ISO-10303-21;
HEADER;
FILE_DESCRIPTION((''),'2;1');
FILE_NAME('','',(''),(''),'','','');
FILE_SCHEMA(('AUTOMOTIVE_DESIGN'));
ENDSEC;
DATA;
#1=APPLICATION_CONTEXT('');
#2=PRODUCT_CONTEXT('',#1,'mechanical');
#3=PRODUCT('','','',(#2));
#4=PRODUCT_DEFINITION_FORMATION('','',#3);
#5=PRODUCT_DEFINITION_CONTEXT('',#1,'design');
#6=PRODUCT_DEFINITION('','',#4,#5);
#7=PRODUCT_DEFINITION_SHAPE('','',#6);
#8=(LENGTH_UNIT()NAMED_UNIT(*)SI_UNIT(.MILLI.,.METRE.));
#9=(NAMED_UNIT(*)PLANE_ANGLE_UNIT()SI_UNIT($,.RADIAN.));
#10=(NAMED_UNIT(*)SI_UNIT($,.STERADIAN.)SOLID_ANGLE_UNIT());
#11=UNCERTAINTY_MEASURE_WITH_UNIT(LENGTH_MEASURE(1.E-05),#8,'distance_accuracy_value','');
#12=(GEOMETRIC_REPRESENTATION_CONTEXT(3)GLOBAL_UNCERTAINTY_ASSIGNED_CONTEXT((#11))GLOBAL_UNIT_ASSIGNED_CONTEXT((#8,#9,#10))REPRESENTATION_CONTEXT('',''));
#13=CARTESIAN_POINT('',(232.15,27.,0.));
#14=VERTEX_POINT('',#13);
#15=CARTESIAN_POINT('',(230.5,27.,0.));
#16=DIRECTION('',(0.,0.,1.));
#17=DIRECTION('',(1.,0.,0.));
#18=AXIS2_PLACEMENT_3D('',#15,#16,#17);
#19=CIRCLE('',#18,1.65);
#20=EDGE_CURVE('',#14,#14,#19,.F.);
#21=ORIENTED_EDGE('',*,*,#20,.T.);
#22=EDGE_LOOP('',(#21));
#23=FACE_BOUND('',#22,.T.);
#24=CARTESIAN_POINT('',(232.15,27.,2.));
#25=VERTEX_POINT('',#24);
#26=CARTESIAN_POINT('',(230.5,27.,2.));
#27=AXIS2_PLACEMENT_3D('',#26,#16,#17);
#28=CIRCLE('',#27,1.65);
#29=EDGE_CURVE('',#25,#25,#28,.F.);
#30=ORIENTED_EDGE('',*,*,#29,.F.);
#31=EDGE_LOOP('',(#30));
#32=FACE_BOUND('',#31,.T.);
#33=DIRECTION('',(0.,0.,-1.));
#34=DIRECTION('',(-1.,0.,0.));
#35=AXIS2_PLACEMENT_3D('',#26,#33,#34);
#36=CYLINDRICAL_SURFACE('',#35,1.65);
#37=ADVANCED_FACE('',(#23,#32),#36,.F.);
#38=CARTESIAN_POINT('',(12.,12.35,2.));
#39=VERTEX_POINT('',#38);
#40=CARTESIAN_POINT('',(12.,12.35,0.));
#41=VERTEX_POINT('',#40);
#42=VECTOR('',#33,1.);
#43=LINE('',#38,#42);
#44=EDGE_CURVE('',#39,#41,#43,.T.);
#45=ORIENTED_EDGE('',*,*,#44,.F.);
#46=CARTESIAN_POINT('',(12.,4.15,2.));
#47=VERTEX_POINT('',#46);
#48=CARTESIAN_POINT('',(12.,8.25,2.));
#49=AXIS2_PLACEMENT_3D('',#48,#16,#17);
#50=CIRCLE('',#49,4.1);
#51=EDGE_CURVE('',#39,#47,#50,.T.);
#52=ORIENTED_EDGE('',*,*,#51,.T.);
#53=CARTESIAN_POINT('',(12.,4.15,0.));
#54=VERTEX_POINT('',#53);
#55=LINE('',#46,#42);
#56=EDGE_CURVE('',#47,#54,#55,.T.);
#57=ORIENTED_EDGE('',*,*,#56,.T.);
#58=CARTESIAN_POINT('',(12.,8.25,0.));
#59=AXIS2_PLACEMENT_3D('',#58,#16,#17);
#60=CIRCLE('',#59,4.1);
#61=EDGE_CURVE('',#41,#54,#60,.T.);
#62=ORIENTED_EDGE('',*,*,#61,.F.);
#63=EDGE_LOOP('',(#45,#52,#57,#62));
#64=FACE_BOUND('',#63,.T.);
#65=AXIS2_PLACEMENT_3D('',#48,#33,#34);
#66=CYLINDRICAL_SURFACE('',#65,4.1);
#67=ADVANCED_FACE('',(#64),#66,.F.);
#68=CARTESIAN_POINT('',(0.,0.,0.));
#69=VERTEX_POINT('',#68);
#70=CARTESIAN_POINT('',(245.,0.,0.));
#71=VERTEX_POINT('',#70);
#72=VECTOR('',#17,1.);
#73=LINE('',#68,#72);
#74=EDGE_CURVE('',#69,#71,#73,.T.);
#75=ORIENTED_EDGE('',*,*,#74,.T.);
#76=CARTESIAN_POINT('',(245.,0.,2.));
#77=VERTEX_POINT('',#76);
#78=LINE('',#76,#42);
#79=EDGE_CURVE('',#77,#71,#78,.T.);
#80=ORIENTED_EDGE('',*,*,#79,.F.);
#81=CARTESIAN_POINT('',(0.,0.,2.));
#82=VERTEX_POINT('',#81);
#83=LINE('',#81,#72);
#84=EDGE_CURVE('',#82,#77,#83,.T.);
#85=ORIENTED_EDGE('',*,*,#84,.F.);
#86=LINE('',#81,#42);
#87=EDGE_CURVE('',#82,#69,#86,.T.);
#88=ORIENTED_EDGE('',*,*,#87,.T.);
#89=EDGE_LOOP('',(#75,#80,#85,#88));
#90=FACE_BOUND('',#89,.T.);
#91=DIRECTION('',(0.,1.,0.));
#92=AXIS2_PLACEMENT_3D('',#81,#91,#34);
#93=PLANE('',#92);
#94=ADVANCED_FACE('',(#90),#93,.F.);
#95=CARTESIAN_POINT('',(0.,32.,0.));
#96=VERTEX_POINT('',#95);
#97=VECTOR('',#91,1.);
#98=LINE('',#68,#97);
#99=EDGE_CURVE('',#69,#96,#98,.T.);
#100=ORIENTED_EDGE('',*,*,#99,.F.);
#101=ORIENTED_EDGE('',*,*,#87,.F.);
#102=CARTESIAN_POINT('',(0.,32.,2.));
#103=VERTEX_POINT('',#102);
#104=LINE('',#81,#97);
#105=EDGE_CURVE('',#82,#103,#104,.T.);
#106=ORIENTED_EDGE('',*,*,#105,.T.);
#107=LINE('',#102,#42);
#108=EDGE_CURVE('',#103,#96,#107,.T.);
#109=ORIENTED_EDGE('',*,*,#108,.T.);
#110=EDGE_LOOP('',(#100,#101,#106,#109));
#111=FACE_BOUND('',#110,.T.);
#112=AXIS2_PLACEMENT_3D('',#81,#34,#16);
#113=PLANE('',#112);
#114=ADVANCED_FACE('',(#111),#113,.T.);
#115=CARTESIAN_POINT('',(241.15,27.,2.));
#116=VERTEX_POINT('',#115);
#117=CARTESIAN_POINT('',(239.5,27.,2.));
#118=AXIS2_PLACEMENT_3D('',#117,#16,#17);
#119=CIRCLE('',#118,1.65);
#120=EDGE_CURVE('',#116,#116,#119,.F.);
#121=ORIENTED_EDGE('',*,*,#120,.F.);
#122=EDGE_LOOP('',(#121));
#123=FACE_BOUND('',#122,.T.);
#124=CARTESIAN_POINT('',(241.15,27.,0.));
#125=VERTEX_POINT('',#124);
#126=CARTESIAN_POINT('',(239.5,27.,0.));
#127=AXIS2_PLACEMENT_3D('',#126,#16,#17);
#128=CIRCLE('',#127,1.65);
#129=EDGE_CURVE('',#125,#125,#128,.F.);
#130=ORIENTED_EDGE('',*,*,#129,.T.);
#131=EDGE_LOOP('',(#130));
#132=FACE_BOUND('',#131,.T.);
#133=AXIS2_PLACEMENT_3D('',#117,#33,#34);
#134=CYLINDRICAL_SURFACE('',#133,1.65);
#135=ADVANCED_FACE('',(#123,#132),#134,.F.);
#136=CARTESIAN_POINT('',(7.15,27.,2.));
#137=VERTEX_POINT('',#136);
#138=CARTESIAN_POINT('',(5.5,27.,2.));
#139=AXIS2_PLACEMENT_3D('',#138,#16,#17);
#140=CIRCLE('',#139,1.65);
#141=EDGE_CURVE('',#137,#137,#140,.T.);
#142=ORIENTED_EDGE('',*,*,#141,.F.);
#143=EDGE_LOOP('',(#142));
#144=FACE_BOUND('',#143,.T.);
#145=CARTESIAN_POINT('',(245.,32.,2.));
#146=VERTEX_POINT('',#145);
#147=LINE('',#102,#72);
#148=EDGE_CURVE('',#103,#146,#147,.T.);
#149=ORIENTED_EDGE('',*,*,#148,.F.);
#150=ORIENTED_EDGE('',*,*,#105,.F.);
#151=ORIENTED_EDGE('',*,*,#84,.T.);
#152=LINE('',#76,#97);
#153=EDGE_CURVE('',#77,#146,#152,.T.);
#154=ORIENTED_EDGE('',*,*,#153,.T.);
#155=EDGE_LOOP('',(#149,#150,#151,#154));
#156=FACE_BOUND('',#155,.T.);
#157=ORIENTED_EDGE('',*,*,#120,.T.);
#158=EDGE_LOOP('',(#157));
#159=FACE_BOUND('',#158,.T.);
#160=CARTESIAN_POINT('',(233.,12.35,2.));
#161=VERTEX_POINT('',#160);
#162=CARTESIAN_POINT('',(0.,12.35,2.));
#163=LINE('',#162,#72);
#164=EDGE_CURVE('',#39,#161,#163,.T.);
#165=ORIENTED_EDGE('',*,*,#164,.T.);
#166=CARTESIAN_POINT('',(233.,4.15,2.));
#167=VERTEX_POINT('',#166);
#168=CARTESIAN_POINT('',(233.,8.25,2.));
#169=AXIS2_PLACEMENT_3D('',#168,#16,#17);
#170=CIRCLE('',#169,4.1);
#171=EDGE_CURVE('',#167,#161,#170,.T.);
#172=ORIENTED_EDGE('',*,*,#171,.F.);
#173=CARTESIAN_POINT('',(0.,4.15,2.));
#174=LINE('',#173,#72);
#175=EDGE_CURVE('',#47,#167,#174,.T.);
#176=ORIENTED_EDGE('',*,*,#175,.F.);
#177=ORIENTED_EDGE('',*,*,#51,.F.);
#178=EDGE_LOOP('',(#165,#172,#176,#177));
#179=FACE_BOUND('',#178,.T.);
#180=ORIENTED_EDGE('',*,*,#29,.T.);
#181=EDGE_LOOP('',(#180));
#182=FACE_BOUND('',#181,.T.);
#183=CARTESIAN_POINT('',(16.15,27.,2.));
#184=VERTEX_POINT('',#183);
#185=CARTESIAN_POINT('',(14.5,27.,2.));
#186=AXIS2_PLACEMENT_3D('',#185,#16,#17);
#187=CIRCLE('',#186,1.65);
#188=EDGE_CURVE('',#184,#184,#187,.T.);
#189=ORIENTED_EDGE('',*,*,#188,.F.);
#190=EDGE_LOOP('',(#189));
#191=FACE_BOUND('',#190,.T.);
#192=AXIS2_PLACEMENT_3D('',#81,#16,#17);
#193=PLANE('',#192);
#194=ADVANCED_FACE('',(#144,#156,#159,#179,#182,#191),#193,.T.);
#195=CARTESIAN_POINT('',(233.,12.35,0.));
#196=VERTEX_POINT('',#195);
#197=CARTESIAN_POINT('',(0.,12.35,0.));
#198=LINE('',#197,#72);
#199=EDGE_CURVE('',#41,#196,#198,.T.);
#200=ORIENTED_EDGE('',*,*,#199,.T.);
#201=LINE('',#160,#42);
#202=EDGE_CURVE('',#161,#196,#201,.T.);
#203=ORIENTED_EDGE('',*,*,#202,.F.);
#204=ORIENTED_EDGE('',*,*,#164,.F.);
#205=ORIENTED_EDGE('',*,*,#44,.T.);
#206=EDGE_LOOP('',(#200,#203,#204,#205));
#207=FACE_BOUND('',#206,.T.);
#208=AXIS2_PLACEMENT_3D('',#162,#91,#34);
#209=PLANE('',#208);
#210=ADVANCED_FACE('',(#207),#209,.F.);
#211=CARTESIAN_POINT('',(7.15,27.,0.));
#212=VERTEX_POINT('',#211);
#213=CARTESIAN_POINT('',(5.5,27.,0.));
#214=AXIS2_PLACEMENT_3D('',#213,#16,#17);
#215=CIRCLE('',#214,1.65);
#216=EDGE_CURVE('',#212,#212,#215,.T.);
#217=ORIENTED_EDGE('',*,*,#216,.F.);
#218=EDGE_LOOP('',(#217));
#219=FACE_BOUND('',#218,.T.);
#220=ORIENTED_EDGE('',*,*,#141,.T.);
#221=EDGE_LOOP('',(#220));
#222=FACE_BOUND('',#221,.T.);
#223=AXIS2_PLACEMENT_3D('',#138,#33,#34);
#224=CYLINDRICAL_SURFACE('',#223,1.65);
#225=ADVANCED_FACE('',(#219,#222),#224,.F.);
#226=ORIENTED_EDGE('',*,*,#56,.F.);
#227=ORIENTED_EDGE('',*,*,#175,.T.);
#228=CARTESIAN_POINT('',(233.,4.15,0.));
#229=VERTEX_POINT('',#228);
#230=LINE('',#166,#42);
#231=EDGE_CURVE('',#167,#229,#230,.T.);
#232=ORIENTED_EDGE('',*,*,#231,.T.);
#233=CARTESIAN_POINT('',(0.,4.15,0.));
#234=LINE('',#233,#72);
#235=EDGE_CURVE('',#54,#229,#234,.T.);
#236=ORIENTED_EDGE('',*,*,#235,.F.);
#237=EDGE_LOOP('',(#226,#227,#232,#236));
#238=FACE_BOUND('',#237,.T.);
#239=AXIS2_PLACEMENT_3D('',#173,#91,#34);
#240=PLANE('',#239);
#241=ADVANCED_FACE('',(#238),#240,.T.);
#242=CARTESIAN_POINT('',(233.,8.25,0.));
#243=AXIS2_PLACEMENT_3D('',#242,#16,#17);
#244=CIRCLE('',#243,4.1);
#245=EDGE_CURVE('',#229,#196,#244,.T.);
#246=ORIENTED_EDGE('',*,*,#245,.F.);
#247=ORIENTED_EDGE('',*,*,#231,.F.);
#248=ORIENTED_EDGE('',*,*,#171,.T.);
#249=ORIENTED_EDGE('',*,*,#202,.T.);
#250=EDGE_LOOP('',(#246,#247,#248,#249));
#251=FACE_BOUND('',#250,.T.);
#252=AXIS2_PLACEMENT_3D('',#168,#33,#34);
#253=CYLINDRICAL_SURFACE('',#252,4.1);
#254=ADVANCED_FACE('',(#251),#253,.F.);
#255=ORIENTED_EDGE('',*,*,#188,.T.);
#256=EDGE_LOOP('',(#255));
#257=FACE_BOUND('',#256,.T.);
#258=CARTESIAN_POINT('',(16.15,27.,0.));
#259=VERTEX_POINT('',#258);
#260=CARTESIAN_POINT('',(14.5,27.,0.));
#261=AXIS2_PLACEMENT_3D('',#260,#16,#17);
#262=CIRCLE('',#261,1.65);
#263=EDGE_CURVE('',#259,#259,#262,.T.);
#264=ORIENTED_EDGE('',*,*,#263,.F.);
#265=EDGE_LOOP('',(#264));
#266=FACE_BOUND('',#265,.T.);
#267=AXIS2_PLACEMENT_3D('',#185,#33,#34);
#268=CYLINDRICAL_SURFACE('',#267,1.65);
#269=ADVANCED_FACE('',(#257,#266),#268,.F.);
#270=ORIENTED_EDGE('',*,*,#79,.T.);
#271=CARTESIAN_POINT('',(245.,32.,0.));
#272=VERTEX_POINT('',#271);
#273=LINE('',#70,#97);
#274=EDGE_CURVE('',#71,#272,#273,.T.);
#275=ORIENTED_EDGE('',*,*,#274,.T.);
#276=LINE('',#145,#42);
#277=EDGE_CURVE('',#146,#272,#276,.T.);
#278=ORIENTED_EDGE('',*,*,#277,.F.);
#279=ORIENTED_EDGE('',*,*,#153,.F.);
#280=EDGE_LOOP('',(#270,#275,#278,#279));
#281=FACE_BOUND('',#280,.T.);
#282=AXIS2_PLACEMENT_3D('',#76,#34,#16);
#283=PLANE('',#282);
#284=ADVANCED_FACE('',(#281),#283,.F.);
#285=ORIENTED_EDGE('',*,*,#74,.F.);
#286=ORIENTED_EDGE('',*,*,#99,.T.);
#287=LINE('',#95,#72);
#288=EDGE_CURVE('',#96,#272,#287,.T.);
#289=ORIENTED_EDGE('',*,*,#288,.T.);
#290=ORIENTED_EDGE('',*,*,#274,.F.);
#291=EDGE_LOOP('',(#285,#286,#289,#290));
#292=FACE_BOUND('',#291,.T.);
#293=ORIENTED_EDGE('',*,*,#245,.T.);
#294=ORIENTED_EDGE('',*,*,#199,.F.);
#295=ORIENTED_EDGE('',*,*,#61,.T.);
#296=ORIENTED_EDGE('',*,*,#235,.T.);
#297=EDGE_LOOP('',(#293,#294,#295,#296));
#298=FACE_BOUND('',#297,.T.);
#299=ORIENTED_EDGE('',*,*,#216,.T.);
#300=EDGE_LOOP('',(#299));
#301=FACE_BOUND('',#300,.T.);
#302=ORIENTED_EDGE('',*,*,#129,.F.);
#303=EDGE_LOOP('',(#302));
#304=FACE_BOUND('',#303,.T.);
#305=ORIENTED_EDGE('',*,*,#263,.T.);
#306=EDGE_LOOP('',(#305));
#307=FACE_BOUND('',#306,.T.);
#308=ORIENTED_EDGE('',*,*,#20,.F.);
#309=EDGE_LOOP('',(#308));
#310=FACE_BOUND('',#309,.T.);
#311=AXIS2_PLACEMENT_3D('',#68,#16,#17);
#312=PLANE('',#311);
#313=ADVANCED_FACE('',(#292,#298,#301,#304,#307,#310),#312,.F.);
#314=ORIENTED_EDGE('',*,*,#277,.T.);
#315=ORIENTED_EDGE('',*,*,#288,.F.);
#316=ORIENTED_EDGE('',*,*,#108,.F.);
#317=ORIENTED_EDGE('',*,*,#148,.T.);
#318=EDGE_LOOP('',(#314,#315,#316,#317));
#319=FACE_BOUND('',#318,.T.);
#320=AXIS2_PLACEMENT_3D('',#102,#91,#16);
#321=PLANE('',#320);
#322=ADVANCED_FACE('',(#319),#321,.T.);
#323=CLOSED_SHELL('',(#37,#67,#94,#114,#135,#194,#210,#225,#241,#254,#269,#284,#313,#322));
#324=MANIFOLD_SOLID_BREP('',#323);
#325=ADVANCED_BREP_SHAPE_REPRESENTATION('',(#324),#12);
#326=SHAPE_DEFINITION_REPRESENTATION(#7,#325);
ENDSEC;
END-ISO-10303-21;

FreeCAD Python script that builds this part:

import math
import FreeCAD as App
import Part
import Sketcher
from FreeCAD import Vector
Q = App.Units.Quantity

doc = App.newDocument("Part")
params = doc.addObject("Spreadsheet::Sheet", "Params")
for row, (alias, value) in enumerate([
    ("sketch1_diameter", "3.3 mm"),
    ("sketch1_radius", "4.1 mm"),
    ("sketch1_width", "245 mm"),
    ("sketch1_width2", "221 mm"),
    ("sketch1_height", "32 mm"),
    ("pad1_length", "2 mm"),
], start=1):
    params.set(f"A{row}", alias)
    params.set(f"B{row}", "=" + value)
    params.setAlias(f"B{row}", alias)

body = doc.addObject("PartDesign::Body", "Body")

sketch1 = doc.addObject("Sketcher::SketchObject", "Sketch")
body.addObject(sketch1)
sketch1.AttachmentSupport = (doc.XY_Plane, [""])
sketch1.MapMode = "FlatFace"
sketch1.addGeometry([
    Part.LineSegment(Vector(0, 32, 0), Vector(0, 0, 0)),
    Part.LineSegment(Vector(0, 0, 0), Vector(245, 0, 0)),
    Part.LineSegment(Vector(245, 0, 0), Vector(245, 32, 0)),
    Part.LineSegment(Vector(245, 32, 0), Vector(0, 32, 0)),
    Part.ArcOfCircle(Part.Circle(Vector(12, 8.25, 0), Vector(0, 0, 1), 4.1), math.radians(90), math.radians(270)),
    Part.LineSegment(Vector(12, 12.35, 0), Vector(233, 12.35, 0)),
    Part.ArcOfCircle(Part.Circle(Vector(233, 8.25, 0), Vector(0, 0, 1), 4.1), math.radians(-90), math.radians(90)),
    Part.LineSegment(Vector(233, 4.15, 0), Vector(12, 4.15, 0)),
    Part.Circle(Vector(5.5, 27, 0), Vector(0, 0, 1), 1.65),
    Part.Circle(Vector(14.5, 27, 0), Vector(0, 0, 1), 1.65),
    Part.Circle(Vector(230.5, 27, 0), Vector(0, 0, 1), 1.65),
    Part.Circle(Vector(239.5, 27, 0), Vector(0, 0, 1), 1.65),
], False)
sketch1.addConstraint([
    Sketcher.Constraint("Coincident", 0, 2, 1, 1),
    Sketcher.Constraint("Coincident", 1, 2, 2, 1),
    Sketcher.Constraint("Coincident", 2, 2, 3, 1),
    Sketcher.Constraint("Coincident", 3, 2, 0, 1),
    Sketcher.Constraint("Tangent", 4, 1, 5, 1),
    Sketcher.Constraint("Tangent", 5, 2, 6, 2),
    Sketcher.Constraint("Tangent", 6, 1, 7, 1),
    Sketcher.Constraint("Tangent", 7, 2, 4, 2),
    Sketcher.Constraint("Vertical", 0),
    Sketcher.Constraint("Horizontal", 1),
    Sketcher.Constraint("Vertical", 2),
    Sketcher.Constraint("Horizontal", 3),
    Sketcher.Constraint("Horizontal", 5),
    Sketcher.Constraint("Horizontal", 7),
    Sketcher.Constraint("Coincident", 0, 2, -1, 1),
    Sketcher.Constraint("Equal", 8, 9),
    Sketcher.Constraint("Equal", 9, 10),
    Sketcher.Constraint("Equal", 10, 11),
    Sketcher.Constraint("Horizontal", 8, 3, 9, 3),
    Sketcher.Constraint("Horizontal", 9, 3, 10, 3),
    Sketcher.Constraint("Horizontal", 10, 3, 11, 3),
    Sketcher.Constraint("Diameter", 8, Q("3.3 mm")),
    Sketcher.Constraint("Radius", 4, Q("4.1 mm")),
    Sketcher.Constraint("DistanceX", 1, 1, 1, 2, Q("245 mm")),
    Sketcher.Constraint("DistanceX", 5, 1, 5, 2, Q("221 mm")),
    Sketcher.Constraint("DistanceY", 0, 2, 0, 1, Q("32 mm")),
    Sketcher.Constraint("DistanceX", -1, 1, 4, 3, Q("12 mm")),
    Sketcher.Constraint("DistanceY", -1, 1, 8, 3, Q("27 mm")),
    Sketcher.Constraint("DistanceX", 8, 3, 9, 3, Q("9 mm")),
    Sketcher.Constraint("DistanceX", 9, 3, 10, 3, Q("216 mm")),
    Sketcher.Constraint("DistanceX", 10, 3, 11, 3, Q("9 mm")),
    Sketcher.Constraint("DistanceX", -1, 1, 8, 3, Q("5.5 mm")),
    Sketcher.Constraint("DistanceY", -1, 1, 4, 3, Q("8.25 mm")),
])
sketch1.setExpression("Constraints[21]", "Params.sketch1_diameter")
sketch1.setExpression("Constraints[22]", "Params.sketch1_radius")
sketch1.setExpression("Constraints[23]", "Params.sketch1_width")
sketch1.setExpression("Constraints[24]", "Params.sketch1_width2")
sketch1.setExpression("Constraints[25]", "Params.sketch1_height")
pad1 = doc.addObject("PartDesign::Pad", "Pad")
body.addObject(pad1)
pad1.Profile = sketch1
pad1.setExpression("Length", "Params.pad1_length")

doc.recompute()
